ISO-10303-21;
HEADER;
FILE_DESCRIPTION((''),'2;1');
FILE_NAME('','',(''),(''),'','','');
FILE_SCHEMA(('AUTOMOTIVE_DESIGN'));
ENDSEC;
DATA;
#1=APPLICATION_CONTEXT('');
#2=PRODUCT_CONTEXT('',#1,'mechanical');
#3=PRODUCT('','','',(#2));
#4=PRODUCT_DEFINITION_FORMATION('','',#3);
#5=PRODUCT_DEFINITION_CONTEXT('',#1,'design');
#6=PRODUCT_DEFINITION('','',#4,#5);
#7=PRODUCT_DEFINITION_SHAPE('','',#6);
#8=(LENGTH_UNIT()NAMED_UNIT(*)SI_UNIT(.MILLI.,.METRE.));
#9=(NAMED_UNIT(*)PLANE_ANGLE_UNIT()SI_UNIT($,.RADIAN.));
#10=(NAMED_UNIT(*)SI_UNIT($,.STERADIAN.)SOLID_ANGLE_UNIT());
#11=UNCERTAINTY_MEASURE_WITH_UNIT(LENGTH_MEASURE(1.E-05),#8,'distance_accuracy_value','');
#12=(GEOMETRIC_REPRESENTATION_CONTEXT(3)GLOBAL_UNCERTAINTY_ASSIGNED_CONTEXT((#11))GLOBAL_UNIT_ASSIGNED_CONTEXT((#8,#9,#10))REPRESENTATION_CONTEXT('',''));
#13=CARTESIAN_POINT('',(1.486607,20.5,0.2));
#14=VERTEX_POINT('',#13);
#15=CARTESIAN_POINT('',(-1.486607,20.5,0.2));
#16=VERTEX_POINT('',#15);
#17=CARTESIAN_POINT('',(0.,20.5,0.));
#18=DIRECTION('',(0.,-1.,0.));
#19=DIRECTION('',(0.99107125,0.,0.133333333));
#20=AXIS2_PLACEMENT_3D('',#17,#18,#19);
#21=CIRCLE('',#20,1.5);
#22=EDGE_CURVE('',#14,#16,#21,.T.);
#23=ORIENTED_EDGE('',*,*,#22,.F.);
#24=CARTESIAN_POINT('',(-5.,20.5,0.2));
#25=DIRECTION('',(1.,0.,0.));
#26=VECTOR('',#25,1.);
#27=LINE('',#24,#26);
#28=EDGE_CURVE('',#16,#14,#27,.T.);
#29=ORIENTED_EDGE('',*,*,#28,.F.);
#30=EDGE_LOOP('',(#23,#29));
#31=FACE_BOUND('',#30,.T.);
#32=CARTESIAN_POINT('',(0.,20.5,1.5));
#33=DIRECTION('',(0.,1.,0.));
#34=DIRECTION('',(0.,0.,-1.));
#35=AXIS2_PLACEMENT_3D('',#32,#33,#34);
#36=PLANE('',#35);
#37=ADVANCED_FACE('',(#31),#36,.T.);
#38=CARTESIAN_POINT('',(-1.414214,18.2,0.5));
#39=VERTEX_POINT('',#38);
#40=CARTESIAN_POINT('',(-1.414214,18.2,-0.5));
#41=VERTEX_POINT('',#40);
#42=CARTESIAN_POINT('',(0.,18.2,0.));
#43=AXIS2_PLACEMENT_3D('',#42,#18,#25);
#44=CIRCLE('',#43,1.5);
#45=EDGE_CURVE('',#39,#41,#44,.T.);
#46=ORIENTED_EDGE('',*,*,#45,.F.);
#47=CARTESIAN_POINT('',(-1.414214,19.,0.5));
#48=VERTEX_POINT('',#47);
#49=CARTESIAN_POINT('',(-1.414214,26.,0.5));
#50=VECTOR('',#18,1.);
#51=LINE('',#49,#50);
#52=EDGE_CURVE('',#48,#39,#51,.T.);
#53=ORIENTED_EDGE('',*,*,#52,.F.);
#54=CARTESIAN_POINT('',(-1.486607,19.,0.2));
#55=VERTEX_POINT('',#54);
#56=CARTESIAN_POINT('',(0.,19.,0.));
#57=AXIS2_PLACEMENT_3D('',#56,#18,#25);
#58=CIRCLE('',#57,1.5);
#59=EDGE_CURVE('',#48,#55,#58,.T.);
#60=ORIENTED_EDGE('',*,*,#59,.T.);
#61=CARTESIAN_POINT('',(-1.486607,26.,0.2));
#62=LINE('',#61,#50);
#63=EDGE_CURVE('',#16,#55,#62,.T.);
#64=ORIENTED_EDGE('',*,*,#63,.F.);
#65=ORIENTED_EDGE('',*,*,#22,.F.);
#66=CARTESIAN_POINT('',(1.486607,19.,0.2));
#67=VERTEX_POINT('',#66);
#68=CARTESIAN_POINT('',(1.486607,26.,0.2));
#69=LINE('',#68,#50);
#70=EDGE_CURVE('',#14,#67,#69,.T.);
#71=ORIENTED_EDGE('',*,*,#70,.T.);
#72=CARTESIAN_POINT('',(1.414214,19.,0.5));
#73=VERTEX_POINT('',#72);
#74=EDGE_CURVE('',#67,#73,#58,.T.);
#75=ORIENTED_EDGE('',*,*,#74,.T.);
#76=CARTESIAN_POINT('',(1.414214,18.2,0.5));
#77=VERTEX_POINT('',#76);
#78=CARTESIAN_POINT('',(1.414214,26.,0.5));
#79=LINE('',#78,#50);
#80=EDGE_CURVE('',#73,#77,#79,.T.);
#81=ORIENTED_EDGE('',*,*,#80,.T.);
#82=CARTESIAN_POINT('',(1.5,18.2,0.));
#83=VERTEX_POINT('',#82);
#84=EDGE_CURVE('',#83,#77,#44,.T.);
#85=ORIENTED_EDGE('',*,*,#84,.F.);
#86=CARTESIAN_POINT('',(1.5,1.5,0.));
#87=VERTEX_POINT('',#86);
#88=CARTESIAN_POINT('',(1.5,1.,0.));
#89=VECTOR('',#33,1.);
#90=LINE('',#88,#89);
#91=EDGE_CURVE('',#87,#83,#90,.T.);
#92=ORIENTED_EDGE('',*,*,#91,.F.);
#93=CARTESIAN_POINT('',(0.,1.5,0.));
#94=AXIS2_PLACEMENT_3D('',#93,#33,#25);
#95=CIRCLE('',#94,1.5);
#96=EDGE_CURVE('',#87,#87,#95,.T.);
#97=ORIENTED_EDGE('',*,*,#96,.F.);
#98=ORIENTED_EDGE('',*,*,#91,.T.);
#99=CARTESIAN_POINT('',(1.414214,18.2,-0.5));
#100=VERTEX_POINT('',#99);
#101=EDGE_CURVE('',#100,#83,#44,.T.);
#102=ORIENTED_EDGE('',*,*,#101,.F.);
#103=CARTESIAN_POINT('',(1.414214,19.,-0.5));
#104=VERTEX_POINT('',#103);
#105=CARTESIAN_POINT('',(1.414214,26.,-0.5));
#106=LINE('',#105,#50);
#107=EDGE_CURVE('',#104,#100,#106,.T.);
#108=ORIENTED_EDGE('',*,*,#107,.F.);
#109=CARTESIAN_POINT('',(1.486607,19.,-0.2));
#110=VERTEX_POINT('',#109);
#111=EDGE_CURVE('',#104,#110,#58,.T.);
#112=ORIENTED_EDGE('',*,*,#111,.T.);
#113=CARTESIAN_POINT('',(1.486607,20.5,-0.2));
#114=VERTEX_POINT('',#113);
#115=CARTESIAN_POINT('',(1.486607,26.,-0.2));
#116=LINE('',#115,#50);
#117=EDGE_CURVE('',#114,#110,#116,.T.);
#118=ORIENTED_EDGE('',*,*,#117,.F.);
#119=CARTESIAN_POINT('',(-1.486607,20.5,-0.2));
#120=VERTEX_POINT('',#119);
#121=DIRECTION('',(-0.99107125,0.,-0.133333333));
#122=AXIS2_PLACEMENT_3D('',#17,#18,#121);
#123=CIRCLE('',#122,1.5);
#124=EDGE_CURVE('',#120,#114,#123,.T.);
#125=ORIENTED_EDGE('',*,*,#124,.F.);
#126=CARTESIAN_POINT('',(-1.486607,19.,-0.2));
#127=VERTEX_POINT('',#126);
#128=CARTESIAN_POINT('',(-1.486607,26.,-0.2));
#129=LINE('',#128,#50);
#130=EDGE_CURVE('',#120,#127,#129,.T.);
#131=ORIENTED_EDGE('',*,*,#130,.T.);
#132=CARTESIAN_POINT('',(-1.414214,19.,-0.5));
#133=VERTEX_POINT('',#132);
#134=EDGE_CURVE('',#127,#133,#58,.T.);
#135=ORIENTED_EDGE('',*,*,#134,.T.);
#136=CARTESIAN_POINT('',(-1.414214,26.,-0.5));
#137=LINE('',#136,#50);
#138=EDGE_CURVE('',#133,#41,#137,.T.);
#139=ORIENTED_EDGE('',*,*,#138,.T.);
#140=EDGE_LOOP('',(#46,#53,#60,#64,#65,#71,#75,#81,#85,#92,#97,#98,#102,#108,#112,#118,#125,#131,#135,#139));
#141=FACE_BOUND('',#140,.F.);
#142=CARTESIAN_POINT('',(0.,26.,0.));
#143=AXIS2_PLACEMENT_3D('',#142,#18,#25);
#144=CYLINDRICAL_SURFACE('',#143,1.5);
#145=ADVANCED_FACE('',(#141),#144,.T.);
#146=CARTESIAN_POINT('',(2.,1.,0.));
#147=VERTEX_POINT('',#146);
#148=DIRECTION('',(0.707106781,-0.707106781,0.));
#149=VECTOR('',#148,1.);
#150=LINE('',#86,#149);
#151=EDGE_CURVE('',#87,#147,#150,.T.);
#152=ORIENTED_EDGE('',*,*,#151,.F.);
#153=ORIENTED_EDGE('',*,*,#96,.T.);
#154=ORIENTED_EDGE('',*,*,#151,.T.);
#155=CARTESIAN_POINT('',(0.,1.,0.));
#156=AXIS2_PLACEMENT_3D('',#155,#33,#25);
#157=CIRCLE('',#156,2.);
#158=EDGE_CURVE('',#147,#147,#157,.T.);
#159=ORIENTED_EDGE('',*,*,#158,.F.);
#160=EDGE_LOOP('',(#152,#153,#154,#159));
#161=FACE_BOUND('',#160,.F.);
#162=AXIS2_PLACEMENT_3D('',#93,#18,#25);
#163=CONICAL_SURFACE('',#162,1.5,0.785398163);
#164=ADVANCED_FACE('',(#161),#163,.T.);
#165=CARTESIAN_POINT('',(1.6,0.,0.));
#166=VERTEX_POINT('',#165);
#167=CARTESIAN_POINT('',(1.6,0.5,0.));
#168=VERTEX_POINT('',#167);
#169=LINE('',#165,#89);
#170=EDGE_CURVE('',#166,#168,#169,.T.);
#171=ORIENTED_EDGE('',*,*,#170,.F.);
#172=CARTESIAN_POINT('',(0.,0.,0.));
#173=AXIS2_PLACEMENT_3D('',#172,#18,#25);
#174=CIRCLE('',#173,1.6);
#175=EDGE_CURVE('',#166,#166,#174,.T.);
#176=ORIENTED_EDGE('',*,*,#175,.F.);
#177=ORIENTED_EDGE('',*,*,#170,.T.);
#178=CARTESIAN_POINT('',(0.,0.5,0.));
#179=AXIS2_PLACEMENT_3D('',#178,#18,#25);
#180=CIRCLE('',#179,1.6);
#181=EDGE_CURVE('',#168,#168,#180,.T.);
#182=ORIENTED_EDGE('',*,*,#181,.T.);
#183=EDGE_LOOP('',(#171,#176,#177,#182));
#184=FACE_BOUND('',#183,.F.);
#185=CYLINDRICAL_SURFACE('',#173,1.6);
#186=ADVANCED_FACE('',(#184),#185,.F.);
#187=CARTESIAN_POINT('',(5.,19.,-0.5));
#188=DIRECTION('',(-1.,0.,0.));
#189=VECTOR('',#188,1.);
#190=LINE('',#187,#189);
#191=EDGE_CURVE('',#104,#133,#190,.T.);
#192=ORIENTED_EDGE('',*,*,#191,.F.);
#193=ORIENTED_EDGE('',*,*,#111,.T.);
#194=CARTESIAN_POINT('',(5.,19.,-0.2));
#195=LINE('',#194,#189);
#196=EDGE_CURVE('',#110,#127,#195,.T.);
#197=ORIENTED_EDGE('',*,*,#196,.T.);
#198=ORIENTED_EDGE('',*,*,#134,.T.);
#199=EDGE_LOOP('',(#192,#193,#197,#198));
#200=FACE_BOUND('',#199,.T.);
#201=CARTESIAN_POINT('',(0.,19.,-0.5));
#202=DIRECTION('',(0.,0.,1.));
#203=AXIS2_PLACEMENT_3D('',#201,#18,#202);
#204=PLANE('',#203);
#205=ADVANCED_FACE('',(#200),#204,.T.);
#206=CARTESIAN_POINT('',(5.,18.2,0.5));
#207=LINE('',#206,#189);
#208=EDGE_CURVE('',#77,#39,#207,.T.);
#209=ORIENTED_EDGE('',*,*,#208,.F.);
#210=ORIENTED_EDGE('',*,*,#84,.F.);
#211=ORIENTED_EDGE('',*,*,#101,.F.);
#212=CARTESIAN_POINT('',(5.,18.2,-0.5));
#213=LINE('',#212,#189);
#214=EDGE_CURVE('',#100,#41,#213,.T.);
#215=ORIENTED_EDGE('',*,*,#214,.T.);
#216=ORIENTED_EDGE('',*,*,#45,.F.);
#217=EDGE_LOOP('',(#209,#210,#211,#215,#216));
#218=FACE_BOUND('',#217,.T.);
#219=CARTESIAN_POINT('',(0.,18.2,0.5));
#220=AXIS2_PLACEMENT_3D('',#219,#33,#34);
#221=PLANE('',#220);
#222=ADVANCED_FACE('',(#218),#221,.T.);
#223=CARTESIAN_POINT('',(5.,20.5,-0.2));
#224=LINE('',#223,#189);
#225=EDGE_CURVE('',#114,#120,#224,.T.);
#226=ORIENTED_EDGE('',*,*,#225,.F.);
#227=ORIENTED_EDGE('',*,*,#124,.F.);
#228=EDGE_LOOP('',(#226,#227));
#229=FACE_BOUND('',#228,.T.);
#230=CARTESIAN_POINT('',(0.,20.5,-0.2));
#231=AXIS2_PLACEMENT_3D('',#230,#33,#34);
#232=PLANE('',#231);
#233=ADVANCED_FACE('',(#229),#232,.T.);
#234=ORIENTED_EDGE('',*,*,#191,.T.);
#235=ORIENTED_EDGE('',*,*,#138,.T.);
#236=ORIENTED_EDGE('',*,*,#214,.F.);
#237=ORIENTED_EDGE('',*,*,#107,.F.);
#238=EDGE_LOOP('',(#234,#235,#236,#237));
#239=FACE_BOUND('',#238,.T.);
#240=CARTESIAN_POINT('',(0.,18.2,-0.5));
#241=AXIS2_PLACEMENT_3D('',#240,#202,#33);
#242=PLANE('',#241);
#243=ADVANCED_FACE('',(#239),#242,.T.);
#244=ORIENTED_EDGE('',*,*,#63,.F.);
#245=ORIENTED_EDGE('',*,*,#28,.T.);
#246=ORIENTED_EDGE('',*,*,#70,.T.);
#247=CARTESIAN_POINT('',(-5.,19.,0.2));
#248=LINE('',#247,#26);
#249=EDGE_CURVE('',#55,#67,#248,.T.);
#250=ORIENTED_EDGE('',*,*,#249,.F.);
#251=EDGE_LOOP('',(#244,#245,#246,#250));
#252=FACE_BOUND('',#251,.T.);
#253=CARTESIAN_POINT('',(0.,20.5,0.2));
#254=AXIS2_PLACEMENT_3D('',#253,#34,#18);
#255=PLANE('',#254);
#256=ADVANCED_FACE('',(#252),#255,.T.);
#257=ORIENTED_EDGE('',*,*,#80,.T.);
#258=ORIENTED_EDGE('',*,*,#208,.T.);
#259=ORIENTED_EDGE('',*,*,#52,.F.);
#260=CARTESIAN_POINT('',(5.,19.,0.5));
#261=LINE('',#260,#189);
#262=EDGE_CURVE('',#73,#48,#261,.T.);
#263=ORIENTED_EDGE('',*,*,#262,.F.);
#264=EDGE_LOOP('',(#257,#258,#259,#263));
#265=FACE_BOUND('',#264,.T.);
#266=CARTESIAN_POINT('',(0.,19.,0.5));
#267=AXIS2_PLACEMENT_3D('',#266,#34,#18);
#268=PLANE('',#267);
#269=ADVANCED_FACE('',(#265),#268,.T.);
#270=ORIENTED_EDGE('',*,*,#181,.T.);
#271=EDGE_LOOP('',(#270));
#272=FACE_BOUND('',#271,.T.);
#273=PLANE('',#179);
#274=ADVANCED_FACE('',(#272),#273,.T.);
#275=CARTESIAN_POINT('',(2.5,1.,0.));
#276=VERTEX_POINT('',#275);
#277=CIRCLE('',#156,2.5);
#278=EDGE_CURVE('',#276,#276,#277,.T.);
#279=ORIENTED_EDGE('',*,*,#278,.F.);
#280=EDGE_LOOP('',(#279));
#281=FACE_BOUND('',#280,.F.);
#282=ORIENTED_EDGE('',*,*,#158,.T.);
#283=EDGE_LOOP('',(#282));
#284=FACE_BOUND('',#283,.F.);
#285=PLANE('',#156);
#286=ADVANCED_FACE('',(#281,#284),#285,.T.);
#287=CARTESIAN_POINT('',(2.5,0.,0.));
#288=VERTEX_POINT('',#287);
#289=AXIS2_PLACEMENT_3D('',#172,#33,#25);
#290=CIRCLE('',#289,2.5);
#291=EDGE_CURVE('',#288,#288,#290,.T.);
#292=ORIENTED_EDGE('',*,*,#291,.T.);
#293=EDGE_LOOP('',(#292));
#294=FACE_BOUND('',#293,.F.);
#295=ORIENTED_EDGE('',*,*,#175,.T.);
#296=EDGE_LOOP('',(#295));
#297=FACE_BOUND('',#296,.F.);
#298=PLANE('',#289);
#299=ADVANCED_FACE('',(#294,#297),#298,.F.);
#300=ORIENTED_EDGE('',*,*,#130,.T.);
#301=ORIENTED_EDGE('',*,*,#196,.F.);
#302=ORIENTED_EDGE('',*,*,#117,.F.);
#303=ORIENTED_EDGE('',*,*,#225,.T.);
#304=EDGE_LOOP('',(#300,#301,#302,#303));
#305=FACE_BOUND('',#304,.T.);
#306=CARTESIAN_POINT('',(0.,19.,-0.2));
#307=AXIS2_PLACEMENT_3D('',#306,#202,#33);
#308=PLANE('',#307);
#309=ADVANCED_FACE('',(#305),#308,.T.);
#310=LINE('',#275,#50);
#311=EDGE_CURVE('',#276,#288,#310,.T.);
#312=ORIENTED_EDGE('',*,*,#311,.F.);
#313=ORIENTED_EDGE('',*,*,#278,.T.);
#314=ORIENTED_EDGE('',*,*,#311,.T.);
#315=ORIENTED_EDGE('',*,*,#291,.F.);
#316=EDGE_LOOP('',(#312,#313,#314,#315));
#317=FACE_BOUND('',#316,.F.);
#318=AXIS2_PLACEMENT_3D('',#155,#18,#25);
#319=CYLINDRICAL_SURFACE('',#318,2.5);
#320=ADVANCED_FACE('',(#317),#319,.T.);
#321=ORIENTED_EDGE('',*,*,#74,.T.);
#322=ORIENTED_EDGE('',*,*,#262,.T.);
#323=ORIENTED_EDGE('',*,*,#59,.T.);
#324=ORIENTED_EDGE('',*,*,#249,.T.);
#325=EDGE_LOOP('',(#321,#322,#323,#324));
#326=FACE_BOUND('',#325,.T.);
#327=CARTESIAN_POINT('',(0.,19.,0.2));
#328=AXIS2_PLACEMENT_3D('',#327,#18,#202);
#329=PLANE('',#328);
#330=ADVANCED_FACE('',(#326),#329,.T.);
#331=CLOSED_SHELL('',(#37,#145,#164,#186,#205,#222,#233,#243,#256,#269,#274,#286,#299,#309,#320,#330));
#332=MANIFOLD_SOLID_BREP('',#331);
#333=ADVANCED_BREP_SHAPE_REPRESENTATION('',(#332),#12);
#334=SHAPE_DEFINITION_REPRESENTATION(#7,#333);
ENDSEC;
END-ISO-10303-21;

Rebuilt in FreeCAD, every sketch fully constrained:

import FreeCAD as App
import Part
import Sketcher


def edges_at(feature, points):
    """Names of the edges that pass closest to the given points."""
    edges = feature.Shape.Edges
    near = lambda p: min(range(len(edges)), key=lambda i: edges[i].distToShape(Part.Vertex(*p))[0])
    return sorted({f"Edge{near(p) + 1}" for p in points})


def add_polygon(sketch, points):
    """Adds a closed chain of lines whose ends are joined by coincident constraints."""
    first, n = sketch.GeometryCount, len(points)
    for a, b in zip(points, points[1:] + points[:1]):
        sketch.addGeometry(Part.LineSegment(App.Vector(*a, 0), App.Vector(*b, 0)), False)
    for i in range(n):
        sketch.addConstraint(Sketcher.Constraint("Coincident", first + i, 2, first + (i + 1) % n, 1))

doc = App.newDocument("Part")
body = doc.addObject("PartDesign::Body", "Body")

# Sketch on XY plane
sketch1 = body.newObject("Sketcher::SketchObject", "Sketch")
sketch1.AttachmentSupport = (doc.getObject("XY_Plane"), [""])
sketch1.MapMode = "FlatFace"
add_polygon(sketch1, [(0, 26), (0, 0), (2.5, 0), (2.5, 1), (1.5, 1), (1.5, 26)])  # lines 0-5
sketch1.addConstraint([
    Sketcher.Constraint("Vertical", 0),
    Sketcher.Constraint("Horizontal", 1),
    Sketcher.Constraint("Vertical", 2),
    Sketcher.Constraint("Horizontal", 3),
    Sketcher.Constraint("Vertical", 4),
    Sketcher.Constraint("Horizontal", 5),
    Sketcher.Constraint("Coincident", 0, 2, -1, 1),
    Sketcher.Constraint("Equal", 3, 2),
    Sketcher.Constraint("DistanceX", 3, 2, 3, 1, 1.0),
    Sketcher.Constraint("DistanceY", 0, 2, 0, 1, 26.0),
    Sketcher.Constraint("DistanceX", 1, 1, 1, 2, 2.5),
])
revolution = body.newObject("PartDesign::Revolution", "Revolution")
revolution.Profile = sketch1
revolution.ReferenceAxis = (sketch1, ["V_Axis"])
revolution.Angle = 360

# Sketch on XZ plane
sketch2 = body.newObject("Sketcher::SketchObject", "Sketch001")
sketch2.AttachmentSupport = (doc.getObject("XZ_Plane"), [""])
sketch2.MapMode = "FlatFace"
sketch2.addGeometry(Part.Circle(App.Vector(0, 0, 0), App.Vector(0, 0, 1), 1.6), False)
sketch2.addConstraint([
    Sketcher.Constraint("Coincident", 0, 3, -1, 1),
    Sketcher.Constraint("Diameter", 0, 3.2),
])
pocket1 = body.newObject("PartDesign::Pocket", "Pocket")
pocket1.Profile = sketch2
pocket1.Length = 0.5
doc.recompute()

chamfer = body.newObject("PartDesign::Chamfer", "Chamfer")
chamfer.Base = (pocket1, edges_at(pocket1, [(-1.5, 1, 0)]))
chamfer.Size = 0.5

# Sketch on YZ plane
sketch3 = body.newObject("Sketcher::SketchObject", "Sketch002")
sketch3.AttachmentSupport = (doc.getObject("YZ_Plane"), [""])
sketch3.MapMode = "FlatFace"
add_polygon(sketch3, [(26, 1.5), (20.5, 1.5), (20.5, 0.2), (19, 0.2), (19, 0.5), (18.2, 0.5), (18.2, -0.5), (19, -0.5), (19, -0.2), (20.5, -0.2), (20.5, -1.5), (26, -1.5)])  # lines 0-11
sketch3.addConstraint([
    Sketcher.Constraint("Horizontal", 0),
    Sketcher.Constraint("Vertical", 1),
    Sketcher.Constraint("Horizontal", 2),
    Sketcher.Constraint("Vertical", 3),
    Sketcher.Constraint("Horizontal", 4),
    Sketcher.Constraint("Vertical", 5),
    Sketcher.Constraint("Horizontal", 6),
    Sketcher.Constraint("Vertical", 7),
    Sketcher.Constraint("Horizontal", 8),
    Sketcher.Constraint("Vertical", 9),
    Sketcher.Constraint("Horizontal", 10),
    Sketcher.Constraint("Vertical", 11),
    Sketcher.Constraint("Symmetric", 3, 2, 6, 2, -1),
    Sketcher.Constraint("Symmetric", 1, 2, 8, 2, -1),
    Sketcher.Constraint("Equal", 1, 9),
    Sketcher.Constraint("DistanceY", 5, 2, 5, 1, 1.0),
    Sketcher.Constraint("DistanceX", 0, 2, 0, 1, 5.5),
    Sketcher.Constraint("DistanceX", 2, 2, 2, 1, 1.5),
    Sketcher.Constraint("DistanceX", 4, 2, 4, 1, 0.8),
    Sketcher.Constraint("DistanceY", 1, 2, 1, 1, 1.3),
    Sketcher.Constraint("DistanceY", 3, 2, 0, 2, 1.0),
    Sketcher.Constraint("DistanceX", -1, 1, 2, 2, 19.0),
])
pocket2 = body.newObject("PartDesign::Pocket", "Pocket001")
pocket2.Profile = sketch3
pocket2.Length = 10
pocket2.Midplane = True

doc.recompute()
